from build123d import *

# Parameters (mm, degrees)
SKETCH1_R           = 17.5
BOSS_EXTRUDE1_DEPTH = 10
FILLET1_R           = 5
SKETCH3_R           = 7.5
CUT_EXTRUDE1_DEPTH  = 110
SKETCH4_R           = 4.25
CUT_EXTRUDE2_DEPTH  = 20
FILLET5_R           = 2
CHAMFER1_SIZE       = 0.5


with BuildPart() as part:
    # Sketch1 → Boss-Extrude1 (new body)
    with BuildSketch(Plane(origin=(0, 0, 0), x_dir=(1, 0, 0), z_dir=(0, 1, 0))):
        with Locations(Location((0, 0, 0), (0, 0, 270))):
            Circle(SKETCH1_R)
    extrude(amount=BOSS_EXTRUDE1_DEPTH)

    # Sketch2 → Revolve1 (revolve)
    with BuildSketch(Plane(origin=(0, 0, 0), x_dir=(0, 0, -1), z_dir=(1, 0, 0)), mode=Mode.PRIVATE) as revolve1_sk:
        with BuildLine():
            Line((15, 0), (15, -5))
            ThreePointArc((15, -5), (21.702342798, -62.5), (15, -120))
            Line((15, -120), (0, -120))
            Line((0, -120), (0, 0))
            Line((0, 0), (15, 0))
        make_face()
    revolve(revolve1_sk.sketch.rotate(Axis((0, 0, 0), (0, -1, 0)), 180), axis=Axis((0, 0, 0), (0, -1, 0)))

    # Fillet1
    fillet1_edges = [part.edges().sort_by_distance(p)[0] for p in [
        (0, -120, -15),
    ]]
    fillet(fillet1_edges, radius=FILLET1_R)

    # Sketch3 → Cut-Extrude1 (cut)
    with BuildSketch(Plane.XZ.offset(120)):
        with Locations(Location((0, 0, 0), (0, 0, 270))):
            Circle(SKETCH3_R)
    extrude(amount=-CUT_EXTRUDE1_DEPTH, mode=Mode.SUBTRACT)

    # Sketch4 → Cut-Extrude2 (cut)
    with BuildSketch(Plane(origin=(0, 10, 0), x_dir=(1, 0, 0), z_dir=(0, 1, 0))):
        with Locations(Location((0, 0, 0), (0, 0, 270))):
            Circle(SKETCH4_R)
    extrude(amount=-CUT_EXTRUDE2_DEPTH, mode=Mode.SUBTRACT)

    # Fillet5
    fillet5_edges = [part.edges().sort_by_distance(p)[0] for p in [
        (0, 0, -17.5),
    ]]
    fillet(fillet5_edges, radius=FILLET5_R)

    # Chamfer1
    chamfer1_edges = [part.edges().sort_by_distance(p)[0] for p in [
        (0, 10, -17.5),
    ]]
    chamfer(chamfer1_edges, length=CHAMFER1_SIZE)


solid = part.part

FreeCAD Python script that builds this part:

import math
import FreeCAD as App
import Part
import Sketcher
from FreeCAD import Vector


def edges_at(feature, points):
    """Names of the edges that pass closest to the given points."""
    edges = feature.Shape.Edges
    near = lambda p: min(range(len(edges)), key=lambda i: edges[i].distToShape(Part.Vertex(*p))[0])
    return sorted({f"Edge{near(p) + 1}" for p in points})

doc = App.newDocument("Part")
params = doc.addObject("Spreadsheet::Sheet", "Params")
for row, (alias, value) in enumerate([
    ("sketch1_diameter", "35 mm"),
    ("pad1_length", "10 mm"),
    ("sketch2_radius", "250 mm"),
    ("sketch2_width", "5 mm"),
    ("sketch2_width2", "120 mm"),
    ("sketch2_height", "15 mm"),
    ("revolution_angle", "360 deg"),
    ("fillet_radius", "5 mm"),
    ("sketch3_diameter", "15 mm"),
    ("pocket1_length", "110 mm"),
    ("sketch4_diameter", "8.5 mm"),
    ("pocket2_length", "20 mm"),
    ("fillet2_radius", "2 mm"),
    ("chamfer_size", "0.5 mm"),
], start=1):
    params.set(f"A{row}", alias)
    params.set(f"B{row}", "=" + value)
    params.setAlias(f"B{row}", alias)

body = doc.addObject("PartDesign::Body", "Body")

# Sketch on XZ plane
sketch1 = body.newObject("Sketcher::SketchObject", "Sketch")
sketch1.AttachmentSupport = (doc.getObject("XZ_Plane"), [""])
sketch1.MapMode = "FlatFace"
sketch1.addGeometry(Part.Circle(Vector(0, 0, 0), Vector(0, 0, 1), 17.5), False)
sketch1.addConstraint(Sketcher.Constraint("Coincident", 0, 3, -1, 1))
sketch1.addConstraint(Sketcher.Constraint("Diameter", 0, 35.0))
sketch1.setExpression("Constraints[1]", "Params.sketch1_diameter")
pad1 = body.newObject("PartDesign::Pad", "Pad")
pad1.Profile = sketch1
pad1.setExpression("Length", "Params.pad1_length")
pad1.Reversed = True

# Sketch on YZ plane
sketch2 = body.newObject("Sketcher::SketchObject", "Sketch001")
sketch2.AttachmentSupport = (doc.getObject("YZ_Plane"), [""])
sketch2.MapMode = "FlatFace"
sketch2.addGeometry(Part.LineSegment(Vector(-5, -15, 0), Vector(0, -15, 0)), False)
sketch2.addGeometry(Part.LineSegment(Vector(0, -15, 0), Vector(0, 0, 0)), False)
sketch2.addGeometry(Part.LineSegment(Vector(0, 0, 0), Vector(-120, 0, 0)), False)
sketch2.addGeometry(Part.LineSegment(Vector(-120, 0, 0), Vector(-120, -15, 0)), False)
sketch2.addGeometry(Part.ArcOfCircle(Part.Circle(Vector(-62.5, 228.297657, 0), Vector(0, 0, 1), 250), math.radians(-103.297072), math.radians(-76.702928)), False)
sketch2.addConstraint(Sketcher.Constraint("Coincident", 0, 2, 1, 1))
sketch2.addConstraint(Sketcher.Constraint("Coincident", 1, 2, 2, 1))
sketch2.addConstraint(Sketcher.Constraint("Coincident", 2, 2, 3, 1))
sketch2.addConstraint(Sketcher.Constraint("Coincident", 3, 2, 4, 1))
sketch2.addConstraint(Sketcher.Constraint("Coincident", 4, 2, 0, 1))
sketch2.addConstraint(Sketcher.Constraint("Horizontal", 0))
sketch2.addConstraint(Sketcher.Constraint("Vertical", 1))
sketch2.addConstraint(Sketcher.Constraint("Horizontal", 2))
sketch2.addConstraint(Sketcher.Constraint("Vertical", 3))
sketch2.addConstraint(Sketcher.Constraint("Coincident", 1, 2, -1, 1))
sketch2.addConstraint(Sketcher.Constraint("Horizontal", 0, 2, 3, 2))
sketch2.addConstraint(Sketcher.Constraint("Radius", 4, 250.0))
sketch2.addConstraint(Sketcher.Constraint("DistanceX", 0, 1, 0, 2, 5.0))
sketch2.addConstraint(Sketcher.Constraint("DistanceX", 2, 2, 2, 1, 120.0))
sketch2.addConstraint(Sketcher.Constraint("DistanceY", 1, 1, 1, 2, 15.0))
sketch2.setExpression("Constraints[11]", "Params.sketch2_radius")
sketch2.setExpression("Constraints[12]", "Params.sketch2_width")
sketch2.setExpression("Constraints[13]", "Params.sketch2_width2")
sketch2.setExpression("Constraints[14]", "Params.sketch2_height")
revolution = body.newObject("PartDesign::Revolution", "Revolution")
revolution.Profile = sketch2
revolution.ReferenceAxis = (sketch2, ["H_Axis"])
revolution.setExpression("Angle", "Params.revolution_angle")
doc.recompute()

fillet = body.newObject("PartDesign::Fillet", "Fillet")
fillet.Base = (revolution, edges_at(revolution, [(0, -120, -15)]))
fillet.setExpression("Radius", "Params.fillet_radius")

# Sketch on XZ plane
sketch3 = body.newObject("Sketcher::SketchObject", "Sketch002")
sketch3.AttachmentSupport = (doc.getObject("XZ_Plane"), [""])
sketch3.MapMode = "FlatFace"
sketch3.AttachmentOffset = App.Placement(Vector(0, 0, 120), App.Rotation())
sketch3.addGeometry(Part.Circle(Vector(0, 0, 0), Vector(0, 0, 1), 7.5), False)
sketch3.addConstraint(Sketcher.Constraint("Coincident", 0, 3, -1, 1))
sketch3.addConstraint(Sketcher.Constraint("Diameter", 0, 15.0))
sketch3.setExpression("Constraints[1]", "Params.sketch3_diameter")
pocket1 = body.newObject("PartDesign::Pocket", "Pocket")
pocket1.Profile = sketch3
pocket1.setExpression("Length", "Params.pocket1_length")

# Sketch on XZ plane
sketch4 = body.newObject("Sketcher::SketchObject", "Sketch003")
sketch4.AttachmentSupport = (doc.getObject("XZ_Plane"), [""])
sketch4.MapMode = "FlatFace"
sketch4.AttachmentOffset = App.Placement(Vector(0, 0, -10), App.Rotation())
sketch4.addGeometry(Part.Circle(Vector(0, 0, 0), Vector(0, 0, 1), 4.25), False)
sketch4.addConstraint(Sketcher.Constraint("Coincident", 0, 3, -1, 1))
sketch4.addConstraint(Sketcher.Constraint("Diameter", 0, 8.5))
sketch4.setExpression("Constraints[1]", "Params.sketch4_diameter")
pocket2 = body.newObject("PartDesign::Pocket", "Pocket001")
pocket2.Profile = sketch4
pocket2.setExpression("Length", "Params.pocket2_length")
pocket2.Reversed = True
doc.recompute()

fillet2 = body.newObject("PartDesign::Fillet", "Fillet001")
fillet2.Base = (pocket2, edges_at(pocket2, [(0, 0, -17.5)]))
fillet2.setExpression("Radius", "Params.fillet2_radius")
doc.recompute()

chamfer = body.newObject("PartDesign::Chamfer", "Chamfer")
chamfer.Base = (fillet2, edges_at(fillet2, [(0, 10, -17.5)]))
chamfer.setExpression("Size", "Params.chamfer_size")

doc.recompute()
